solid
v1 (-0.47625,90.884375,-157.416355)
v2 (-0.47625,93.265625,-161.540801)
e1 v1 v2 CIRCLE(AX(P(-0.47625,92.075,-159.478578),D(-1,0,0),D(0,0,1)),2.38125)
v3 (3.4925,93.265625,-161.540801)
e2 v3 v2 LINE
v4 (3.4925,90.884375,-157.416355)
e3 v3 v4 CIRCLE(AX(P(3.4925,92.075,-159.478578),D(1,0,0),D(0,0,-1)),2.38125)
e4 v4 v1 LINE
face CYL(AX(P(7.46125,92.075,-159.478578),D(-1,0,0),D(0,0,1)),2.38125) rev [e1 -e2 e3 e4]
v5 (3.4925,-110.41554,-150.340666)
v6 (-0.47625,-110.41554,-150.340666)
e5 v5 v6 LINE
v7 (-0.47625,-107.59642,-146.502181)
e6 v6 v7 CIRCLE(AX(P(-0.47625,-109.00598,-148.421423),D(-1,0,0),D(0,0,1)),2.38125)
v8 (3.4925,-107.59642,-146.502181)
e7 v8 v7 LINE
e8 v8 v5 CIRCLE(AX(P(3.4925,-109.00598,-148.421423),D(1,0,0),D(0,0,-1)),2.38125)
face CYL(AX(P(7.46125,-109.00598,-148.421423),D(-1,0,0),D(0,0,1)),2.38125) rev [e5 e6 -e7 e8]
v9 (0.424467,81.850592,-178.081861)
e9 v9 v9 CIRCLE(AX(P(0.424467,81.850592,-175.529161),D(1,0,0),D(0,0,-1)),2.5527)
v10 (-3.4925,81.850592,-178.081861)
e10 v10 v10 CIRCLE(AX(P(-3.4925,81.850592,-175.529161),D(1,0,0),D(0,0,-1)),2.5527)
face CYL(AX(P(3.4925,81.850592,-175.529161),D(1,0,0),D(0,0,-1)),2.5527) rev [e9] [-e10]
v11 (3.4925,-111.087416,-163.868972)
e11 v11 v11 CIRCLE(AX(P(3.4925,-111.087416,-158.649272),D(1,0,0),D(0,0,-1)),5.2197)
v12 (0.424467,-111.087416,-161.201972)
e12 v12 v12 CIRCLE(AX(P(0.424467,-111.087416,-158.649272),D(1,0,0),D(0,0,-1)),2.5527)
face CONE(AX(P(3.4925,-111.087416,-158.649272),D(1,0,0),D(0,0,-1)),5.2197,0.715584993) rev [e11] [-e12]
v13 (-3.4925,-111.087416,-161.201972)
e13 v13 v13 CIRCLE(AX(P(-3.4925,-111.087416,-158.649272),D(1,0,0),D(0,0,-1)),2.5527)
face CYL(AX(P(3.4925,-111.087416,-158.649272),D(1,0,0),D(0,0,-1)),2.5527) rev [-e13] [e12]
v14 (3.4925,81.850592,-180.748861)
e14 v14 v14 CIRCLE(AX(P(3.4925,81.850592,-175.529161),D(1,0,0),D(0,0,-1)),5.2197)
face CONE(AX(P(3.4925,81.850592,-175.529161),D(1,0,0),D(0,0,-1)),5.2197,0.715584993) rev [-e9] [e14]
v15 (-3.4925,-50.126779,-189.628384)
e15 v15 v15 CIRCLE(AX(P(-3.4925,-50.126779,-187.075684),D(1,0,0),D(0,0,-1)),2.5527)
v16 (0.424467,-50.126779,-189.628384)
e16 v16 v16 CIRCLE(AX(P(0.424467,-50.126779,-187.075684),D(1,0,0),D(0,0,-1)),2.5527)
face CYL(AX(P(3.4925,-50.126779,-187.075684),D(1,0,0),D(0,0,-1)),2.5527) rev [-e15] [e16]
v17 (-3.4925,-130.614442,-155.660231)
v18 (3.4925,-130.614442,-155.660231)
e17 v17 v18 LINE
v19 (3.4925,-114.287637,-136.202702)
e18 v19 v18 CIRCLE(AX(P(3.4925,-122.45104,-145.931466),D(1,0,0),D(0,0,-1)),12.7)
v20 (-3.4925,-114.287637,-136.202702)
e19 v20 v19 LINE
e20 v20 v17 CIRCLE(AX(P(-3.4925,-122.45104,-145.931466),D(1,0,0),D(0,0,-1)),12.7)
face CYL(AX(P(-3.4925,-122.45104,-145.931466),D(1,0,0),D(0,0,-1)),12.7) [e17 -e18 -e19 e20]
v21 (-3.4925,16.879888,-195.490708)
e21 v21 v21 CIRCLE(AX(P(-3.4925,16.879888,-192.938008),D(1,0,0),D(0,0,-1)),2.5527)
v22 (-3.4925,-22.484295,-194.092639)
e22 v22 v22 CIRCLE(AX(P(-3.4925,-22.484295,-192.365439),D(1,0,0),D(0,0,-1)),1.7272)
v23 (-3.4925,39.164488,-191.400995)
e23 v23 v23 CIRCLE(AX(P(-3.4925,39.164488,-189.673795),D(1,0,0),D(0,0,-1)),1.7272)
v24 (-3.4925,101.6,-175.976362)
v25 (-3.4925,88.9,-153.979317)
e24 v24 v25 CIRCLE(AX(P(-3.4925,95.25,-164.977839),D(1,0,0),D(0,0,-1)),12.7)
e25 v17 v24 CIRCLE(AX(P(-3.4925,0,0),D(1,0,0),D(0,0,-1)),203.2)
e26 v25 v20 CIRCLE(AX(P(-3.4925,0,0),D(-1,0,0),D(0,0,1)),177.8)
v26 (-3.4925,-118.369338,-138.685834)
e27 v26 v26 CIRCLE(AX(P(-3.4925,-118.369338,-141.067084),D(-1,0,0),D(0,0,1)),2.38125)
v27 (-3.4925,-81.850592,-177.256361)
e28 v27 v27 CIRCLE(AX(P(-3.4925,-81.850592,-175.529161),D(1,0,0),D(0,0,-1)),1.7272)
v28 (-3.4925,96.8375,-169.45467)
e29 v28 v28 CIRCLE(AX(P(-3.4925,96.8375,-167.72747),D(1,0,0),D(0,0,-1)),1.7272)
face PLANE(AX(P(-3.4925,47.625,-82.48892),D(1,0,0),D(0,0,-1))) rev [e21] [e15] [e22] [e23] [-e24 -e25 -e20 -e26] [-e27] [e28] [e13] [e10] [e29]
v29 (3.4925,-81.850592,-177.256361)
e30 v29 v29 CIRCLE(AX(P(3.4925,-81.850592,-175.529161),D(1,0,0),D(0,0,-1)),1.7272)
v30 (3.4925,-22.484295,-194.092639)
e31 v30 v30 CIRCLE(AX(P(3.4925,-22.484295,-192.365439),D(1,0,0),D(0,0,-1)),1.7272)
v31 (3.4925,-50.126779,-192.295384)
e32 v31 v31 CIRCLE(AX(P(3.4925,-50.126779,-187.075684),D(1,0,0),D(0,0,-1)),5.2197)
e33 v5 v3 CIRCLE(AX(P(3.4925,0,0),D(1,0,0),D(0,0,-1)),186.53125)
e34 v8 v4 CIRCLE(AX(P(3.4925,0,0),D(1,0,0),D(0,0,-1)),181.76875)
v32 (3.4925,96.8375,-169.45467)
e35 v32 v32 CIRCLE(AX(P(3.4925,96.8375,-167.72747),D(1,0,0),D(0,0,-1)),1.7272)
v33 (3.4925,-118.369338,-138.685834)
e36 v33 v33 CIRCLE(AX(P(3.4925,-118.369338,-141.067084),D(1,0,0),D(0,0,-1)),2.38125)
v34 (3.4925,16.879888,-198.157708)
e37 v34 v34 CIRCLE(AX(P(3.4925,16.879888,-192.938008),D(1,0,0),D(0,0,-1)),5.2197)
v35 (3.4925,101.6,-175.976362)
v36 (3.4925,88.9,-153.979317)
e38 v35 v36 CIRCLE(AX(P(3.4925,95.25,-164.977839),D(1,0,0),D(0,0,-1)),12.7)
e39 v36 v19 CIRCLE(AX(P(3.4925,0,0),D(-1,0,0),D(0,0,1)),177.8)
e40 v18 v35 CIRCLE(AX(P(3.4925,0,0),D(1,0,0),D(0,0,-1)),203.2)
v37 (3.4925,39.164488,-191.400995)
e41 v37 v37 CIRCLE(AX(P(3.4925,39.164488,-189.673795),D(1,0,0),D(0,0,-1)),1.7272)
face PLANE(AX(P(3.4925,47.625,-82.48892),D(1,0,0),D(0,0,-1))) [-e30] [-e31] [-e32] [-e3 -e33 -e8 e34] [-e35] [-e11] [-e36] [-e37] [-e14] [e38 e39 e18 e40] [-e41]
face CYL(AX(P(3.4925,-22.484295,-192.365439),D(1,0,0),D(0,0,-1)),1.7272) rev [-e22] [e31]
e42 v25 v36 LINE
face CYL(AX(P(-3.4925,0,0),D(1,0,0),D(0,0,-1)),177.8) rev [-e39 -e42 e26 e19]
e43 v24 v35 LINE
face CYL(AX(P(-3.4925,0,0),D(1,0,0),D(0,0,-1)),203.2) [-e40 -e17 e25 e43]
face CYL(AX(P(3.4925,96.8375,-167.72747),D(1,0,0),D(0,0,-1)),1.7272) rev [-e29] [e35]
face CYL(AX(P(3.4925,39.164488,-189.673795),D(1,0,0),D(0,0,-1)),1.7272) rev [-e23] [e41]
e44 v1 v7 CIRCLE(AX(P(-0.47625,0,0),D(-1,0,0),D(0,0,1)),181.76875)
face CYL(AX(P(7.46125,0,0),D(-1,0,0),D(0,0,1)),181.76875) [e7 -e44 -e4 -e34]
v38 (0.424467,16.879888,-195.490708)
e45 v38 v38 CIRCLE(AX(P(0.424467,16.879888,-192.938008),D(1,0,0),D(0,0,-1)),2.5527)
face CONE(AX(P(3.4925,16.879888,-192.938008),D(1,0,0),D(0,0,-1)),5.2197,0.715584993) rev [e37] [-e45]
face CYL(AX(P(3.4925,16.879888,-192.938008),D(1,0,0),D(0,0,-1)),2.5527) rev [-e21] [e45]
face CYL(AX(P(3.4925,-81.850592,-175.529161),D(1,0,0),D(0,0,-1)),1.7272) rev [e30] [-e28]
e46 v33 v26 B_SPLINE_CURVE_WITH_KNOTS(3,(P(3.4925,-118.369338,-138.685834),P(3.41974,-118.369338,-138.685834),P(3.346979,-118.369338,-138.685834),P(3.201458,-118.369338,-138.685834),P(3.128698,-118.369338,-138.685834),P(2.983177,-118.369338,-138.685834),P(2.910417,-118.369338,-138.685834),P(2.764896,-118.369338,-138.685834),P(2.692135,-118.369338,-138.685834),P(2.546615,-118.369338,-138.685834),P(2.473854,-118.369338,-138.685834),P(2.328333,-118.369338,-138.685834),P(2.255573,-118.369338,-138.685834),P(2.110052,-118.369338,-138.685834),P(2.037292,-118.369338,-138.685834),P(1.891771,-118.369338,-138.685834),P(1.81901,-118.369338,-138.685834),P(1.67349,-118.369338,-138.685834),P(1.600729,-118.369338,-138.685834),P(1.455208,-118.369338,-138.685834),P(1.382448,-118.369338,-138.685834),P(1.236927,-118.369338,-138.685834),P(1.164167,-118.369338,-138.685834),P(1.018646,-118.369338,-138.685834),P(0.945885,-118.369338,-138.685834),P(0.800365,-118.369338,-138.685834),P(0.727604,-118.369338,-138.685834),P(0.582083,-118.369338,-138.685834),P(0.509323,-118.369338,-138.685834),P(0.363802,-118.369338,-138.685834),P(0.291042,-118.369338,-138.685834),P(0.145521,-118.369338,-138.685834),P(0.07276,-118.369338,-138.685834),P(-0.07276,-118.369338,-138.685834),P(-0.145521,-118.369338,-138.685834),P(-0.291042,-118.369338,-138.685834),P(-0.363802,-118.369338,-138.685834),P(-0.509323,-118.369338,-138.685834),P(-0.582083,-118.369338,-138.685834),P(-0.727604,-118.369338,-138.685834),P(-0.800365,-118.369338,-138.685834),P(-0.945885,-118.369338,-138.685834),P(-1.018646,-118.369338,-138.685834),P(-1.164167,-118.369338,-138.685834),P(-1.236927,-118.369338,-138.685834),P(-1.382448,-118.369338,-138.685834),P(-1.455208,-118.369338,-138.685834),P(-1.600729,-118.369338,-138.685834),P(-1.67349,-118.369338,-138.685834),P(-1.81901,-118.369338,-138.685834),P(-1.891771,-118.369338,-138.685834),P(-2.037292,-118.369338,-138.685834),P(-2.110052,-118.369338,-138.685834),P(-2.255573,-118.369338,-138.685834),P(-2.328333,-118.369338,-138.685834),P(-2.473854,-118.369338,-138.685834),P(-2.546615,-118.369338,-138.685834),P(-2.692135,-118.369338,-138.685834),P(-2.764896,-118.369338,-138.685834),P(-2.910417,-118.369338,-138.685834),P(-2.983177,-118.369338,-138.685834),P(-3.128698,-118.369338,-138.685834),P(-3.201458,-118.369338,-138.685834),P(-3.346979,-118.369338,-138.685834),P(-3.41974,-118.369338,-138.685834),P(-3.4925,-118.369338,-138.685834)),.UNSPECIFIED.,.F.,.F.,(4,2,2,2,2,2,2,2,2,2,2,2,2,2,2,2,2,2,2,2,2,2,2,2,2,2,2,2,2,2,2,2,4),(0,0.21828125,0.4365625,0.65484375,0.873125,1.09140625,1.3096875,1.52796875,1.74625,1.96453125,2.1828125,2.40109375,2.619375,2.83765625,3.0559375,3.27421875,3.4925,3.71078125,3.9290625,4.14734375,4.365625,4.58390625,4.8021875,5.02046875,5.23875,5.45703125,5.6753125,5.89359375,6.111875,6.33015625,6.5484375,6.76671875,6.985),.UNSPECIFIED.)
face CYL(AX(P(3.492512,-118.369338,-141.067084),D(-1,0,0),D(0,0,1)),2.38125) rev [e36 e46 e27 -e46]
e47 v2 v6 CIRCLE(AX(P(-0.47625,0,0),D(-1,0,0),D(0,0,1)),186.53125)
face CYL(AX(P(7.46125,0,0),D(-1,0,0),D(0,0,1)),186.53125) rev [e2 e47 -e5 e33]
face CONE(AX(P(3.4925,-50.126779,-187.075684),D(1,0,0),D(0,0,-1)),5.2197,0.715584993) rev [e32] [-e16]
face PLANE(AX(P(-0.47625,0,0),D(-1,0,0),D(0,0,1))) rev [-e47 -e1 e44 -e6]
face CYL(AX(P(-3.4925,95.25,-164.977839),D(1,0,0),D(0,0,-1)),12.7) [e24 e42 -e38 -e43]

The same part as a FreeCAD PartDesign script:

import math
import FreeCAD as App
import Part
import Sketcher
from FreeCAD import Vector
Q = App.Units.Quantity

doc = App.newDocument("Part")
body = doc.addObject("PartDesign::Body", "Body")

# Sketch on YZ plane
sketch1 = doc.addObject("Sketcher::SketchObject", "Sketch")
body.addObject(sketch1)
sketch1.AttachmentSupport = (doc.YZ_Plane, [""])
sketch1.MapMode = "FlatFace"
sketch1.addGeometry(Part.ArcOfCircle(Part.Circle(Vector(0, 0, 0), Vector(0, 0, 1), 178), math.radians(-130), math.radians(-60)), False)
sketch1.addGeometry(Part.ArcOfCircle(Part.Circle(Vector(-122, -146, 0), Vector(0, 0, 1), 13), math.radians(50), math.radians(230)), False)
sketch1.addGeometry(Part.ArcOfCircle(Part.Circle(Vector(0, 0, 0), Vector(0, 0, 1), 203), math.radians(-130), math.radians(-60)), False)
sketch1.addGeometry(Part.ArcOfCircle(Part.Circle(Vector(95, -165, 0), Vector(0, 0, 1), 13), math.radians(-60), math.radians(120)), False)
sketch1.addConstraint(Sketcher.Constraint("Tangent", 0, 1, 1, 1))
sketch1.addConstraint(Sketcher.Constraint("Tangent", 1, 2, 2, 1))
sketch1.addConstraint(Sketcher.Constraint("Tangent", 2, 2, 3, 1))
sketch1.addConstraint(Sketcher.Constraint("Tangent", 3, 2, 0, 2))
sketch1.addConstraint(Sketcher.Constraint("Coincident", 0, 3, -1, 1))
sketch1.addConstraint(Sketcher.Constraint("Coincident", 2, 3, -1, 1))
sketch1.addConstraint(Sketcher.Constraint("Radius", 0, Q("7 in")))
sketch1.addConstraint(Sketcher.Constraint("Radius", 2, Q("8 in")))
sketch1.addConstraint(Sketcher.Constraint("DistanceX", -1, 1, 2, 2, Q("4 in")))
sketch1.addConstraint(Sketcher.Constraint("DistanceY", 0, 1, -1, 1, Q("136.202702 mm")))
pad1 = doc.addObject("PartDesign::Pad", "Pad")
body.addObject(pad1)
pad1.Profile = sketch1
pad1.Length = Q("0.275 in")
pad1.Midplane = True

# Sketch on YZ plane
sketch2 = doc.addObject("Sketcher::SketchObject", "Sketch001")
body.addObject(sketch2)
sketch2.AttachmentSupport = (doc.YZ_Plane, [""])
sketch2.MapMode = "FlatFace"
sketch2.AttachmentOffset = App.Placement(Vector(0, 0, 0.1375 * 25.4), App.Rotation())
sketch2.addGeometry(Part.ArcOfCircle(Part.Circle(Vector(0, 0, 0), Vector(0, 0, 1), 186.5), math.radians(-126), math.radians(-60)), False)
sketch2.addGeometry(Part.ArcOfCircle(Part.Circle(Vector(-109, -148.4, 0), Vector(0, 0, 1), 2.4), math.radians(54), math.radians(234)), False)
sketch2.addGeometry(Part.ArcOfCircle(Part.Circle(Vector(0, 0, 0), Vector(0, 0, 1), 181.8), math.radians(-126), math.radians(-60)), False)
sketch2.addGeometry(Part.ArcOfCircle(Part.Circle(Vector(92.1, -159.5, 0), Vector(0, 0, 1), 2.4), math.radians(-60), math.radians(120)), False)
sketch2.addConstraint(Sketcher.Constraint("Tangent", 0, 1, 1, 2))
sketch2.addConstraint(Sketcher.Constraint("Tangent", 1, 1, 2, 1))
sketch2.addConstraint(Sketcher.Constraint("Tangent", 2, 2, 3, 2))
sketch2.addConstraint(Sketcher.Constraint("Tangent", 3, 1, 0, 2))
sketch2.addConstraint(Sketcher.Constraint("Coincident", 0, 3, -1, 1))
sketch2.addConstraint(Sketcher.Constraint("Coincident", 2, 3, -1, 1))
sketch2.addConstraint(Sketcher.Constraint("Radius", 0, Q("7.34375 in")))
sketch2.addConstraint(Sketcher.Constraint("Radius", 1, Q("0.09375 in")))
sketch2.addConstraint(Sketcher.Constraint("DistanceX", -1, 1, 3, 3, Q("3.625 in")))
sketch2.addConstraint(Sketcher.Constraint("DistanceX", 1, 3, -1, 1, Q("109.00598 mm")))
pocket1 = doc.addObject("PartDesign::Pocket", "Pocket")
body.addObject(pocket1)
pocket1.Profile = sketch2
pocket1.Length = Q("0.3125 in")
pocket1.Midplane = True

# Sketch on YZ plane
sketch3 = doc.addObject("Sketcher::SketchObject", "Sketch002")
body.addObject(sketch3)
sketch3.AttachmentSupport = (doc.YZ_Plane, [""])
sketch3.MapMode = "FlatFace"
sketch3.AttachmentOffset = App.Placement(Vector(0, 0, 0.1375 * 25.4), App.Rotation())
sketch3.addGeometry(Part.Circle(Vector(81.9, -175.5, 0), Vector(0, 0, 1), 2.6), False)
sketch3.addGeometry(Part.Circle(Vector(16.9, -192.9, 0), Vector(0, 0, 1), 2.6), False)
sketch3.addGeometry(Part.Circle(Vector(-50.1, -187.1, 0), Vector(0, 0, 1), 2.6), False)
sketch3.addGeometry(Part.Circle(Vector(-111.1, -158.6, 0), Vector(0, 0, 1), 2.6), False)
sketch3.addConstraint(Sketcher.Constraint("Equal", 0, 1))
sketch3.addConstraint(Sketcher.Constraint("Equal", 1, 2))
sketch3.addConstraint(Sketcher.Constraint("Equal", 2, 3))
sketch3.addConstraint(Sketcher.Constraint("Diameter", 0, Q("0.201 in")))
sketch3.addConstraint(Sketcher.Constraint("DistanceY", 1, 3, 2, 3, Q("0.2308001 in")))
sketch3.addConstraint(Sketcher.Constraint("DistanceX", -1, 1, 0, 3, Q("81.850592 mm")))
sketch3.addConstraint(Sketcher.Constraint("DistanceY", 0, 3, -1, 1, Q("175.529161 mm")))
sketch3.addConstraint(Sketcher.Constraint("DistanceX", -1, 1, 1, 3, Q("16.879888 mm")))
sketch3.addConstraint(Sketcher.Constraint("DistanceY", 1, 3, -1, 1, Q("192.938008 mm")))
sketch3.addConstraint(Sketcher.Constraint("DistanceX", 2, 3, -1, 1, Q("50.126779 mm")))
sketch3.addConstraint(Sketcher.Constraint("DistanceX", 3, 3, 0, 3, Q("192.938008 mm")))
sketch3.addConstraint(Sketcher.Constraint("DistanceY", 0, 3, 3, 3, Q("16.879888 mm")))
doc.recompute()
hole = doc.addObject("PartDesign::Hole", "Hole")
body.addObject(hole)
hole.Profile = sketch3
hole.ThreadType = "None"
hole.Diameter = Q("0.201 in")
hole.DepthType = "ThroughAll"
hole.HoleCutType = "Countersink"
hole.HoleCutDiameter = Q("0.411 in")
hole.HoleCutCountersinkAngle = 82

# Sketch on YZ plane
sketch4 = doc.addObject("Sketcher::SketchObject", "Sketch003")
body.addObject(sketch4)
sketch4.AttachmentSupport = (doc.YZ_Plane, [""])
sketch4.MapMode = "FlatFace"
sketch4.AttachmentOffset = App.Placement(Vector(0, 0, 0.1375 * 25.4), App.Rotation())
sketch4.addGeometry(Part.Circle(Vector(-118.4, -141.1, 0), Vector(0, 0, 1), 2.4), False)
sketch4.addConstraint(Sketcher.Constraint("Diameter", 0, Q("0.1875 in")))
sketch4.addConstraint(Sketcher.Constraint("DistanceX", 0, 3, -1, 1, Q("118.369338 mm")))
sketch4.addConstraint(Sketcher.Constraint("DistanceY", 0, 3, -1, 1, Q("141.067084 mm")))
pocket2 = doc.addObject("PartDesign::Pocket", "Pocket001")
body.addObject(pocket2)
pocket2.Profile = sketch4
pocket2.Type = "ThroughAll"
pocket2.Midplane = True

# Sketch on YZ plane
sketch5 = doc.addObject("Sketcher::SketchObject", "Sketch004")
body.addObject(sketch5)
sketch5.AttachmentSupport = (doc.YZ_Plane, [""])
sketch5.MapMode = "FlatFace"
sketch5.AttachmentOffset = App.Placement(Vector(0, 0, 0.1375 * 25.4), App.Rotation())
sketch5.addGeometry(Part.Circle(Vector(96.8, -167.7, 0), Vector(0, 0, 1), 1.7), False)
sketch5.addGeometry(Part.Circle(Vector(39.2, -189.7, 0), Vector(0, 0, 1), 1.7), False)
sketch5.addGeometry(Part.Circle(Vector(-81.9, -175.5, 0), Vector(0, 0, 1), 1.7), False)
sketch5.addGeometry(Part.Circle(Vector(-22.5, -192.4, 0), Vector(0, 0, 1), 1.7), False)
sketch5.addConstraint(Sketcher.Constraint("Equal", 0, 1))
sketch5.addConstraint(Sketcher.Constraint("Equal", 1, 2))
sketch5.addConstraint(Sketcher.Constraint("Equal", 2, 3))
sketch5.addConstraint(Sketcher.Constraint("Diameter", 0, Q("0.136 in")))
sketch5.addConstraint(Sketcher.Constraint("DistanceX", -1, 1, 0, 3, Q("3.8125 in")))
sketch5.addConstraint(Sketcher.Constraint("DistanceY", 0, 3, -1, 1, Q("167.72747 mm")))
sketch5.addConstraint(Sketcher.Constraint("DistanceX", -1, 1, 1, 3, Q("39.164488 mm")))
sketch5.addConstraint(Sketcher.Constraint("DistanceX", 2, 3, -1, 1, Q("81.850592 mm")))
sketch5.addConstraint(Sketcher.Constraint("DistanceY", 2, 3, -1, 1, Q("175.529161 mm")))
sketch5.addConstraint(Sketcher.Constraint("DistanceY", 3, 3, -1, 1, Q("192.365439 mm")))
sketch5.addConstraint(Sketcher.Constraint("DistanceY", 1, 3, -1, 1, Q("189.673795 mm")))
sketch5.addConstraint(Sketcher.Constraint("DistanceX", 3, 3, -1, 1, Q("22.484295 mm")))
doc.recompute()
hole2 = doc.addObject("PartDesign::Hole", "Hole001")
body.addObject(hole2)
hole2.Profile = sketch5
hole2.ThreadType = "None"
hole2.Diameter = Q("0.136 in")
hole2.DepthType = "ThroughAll"

doc.recompute()
